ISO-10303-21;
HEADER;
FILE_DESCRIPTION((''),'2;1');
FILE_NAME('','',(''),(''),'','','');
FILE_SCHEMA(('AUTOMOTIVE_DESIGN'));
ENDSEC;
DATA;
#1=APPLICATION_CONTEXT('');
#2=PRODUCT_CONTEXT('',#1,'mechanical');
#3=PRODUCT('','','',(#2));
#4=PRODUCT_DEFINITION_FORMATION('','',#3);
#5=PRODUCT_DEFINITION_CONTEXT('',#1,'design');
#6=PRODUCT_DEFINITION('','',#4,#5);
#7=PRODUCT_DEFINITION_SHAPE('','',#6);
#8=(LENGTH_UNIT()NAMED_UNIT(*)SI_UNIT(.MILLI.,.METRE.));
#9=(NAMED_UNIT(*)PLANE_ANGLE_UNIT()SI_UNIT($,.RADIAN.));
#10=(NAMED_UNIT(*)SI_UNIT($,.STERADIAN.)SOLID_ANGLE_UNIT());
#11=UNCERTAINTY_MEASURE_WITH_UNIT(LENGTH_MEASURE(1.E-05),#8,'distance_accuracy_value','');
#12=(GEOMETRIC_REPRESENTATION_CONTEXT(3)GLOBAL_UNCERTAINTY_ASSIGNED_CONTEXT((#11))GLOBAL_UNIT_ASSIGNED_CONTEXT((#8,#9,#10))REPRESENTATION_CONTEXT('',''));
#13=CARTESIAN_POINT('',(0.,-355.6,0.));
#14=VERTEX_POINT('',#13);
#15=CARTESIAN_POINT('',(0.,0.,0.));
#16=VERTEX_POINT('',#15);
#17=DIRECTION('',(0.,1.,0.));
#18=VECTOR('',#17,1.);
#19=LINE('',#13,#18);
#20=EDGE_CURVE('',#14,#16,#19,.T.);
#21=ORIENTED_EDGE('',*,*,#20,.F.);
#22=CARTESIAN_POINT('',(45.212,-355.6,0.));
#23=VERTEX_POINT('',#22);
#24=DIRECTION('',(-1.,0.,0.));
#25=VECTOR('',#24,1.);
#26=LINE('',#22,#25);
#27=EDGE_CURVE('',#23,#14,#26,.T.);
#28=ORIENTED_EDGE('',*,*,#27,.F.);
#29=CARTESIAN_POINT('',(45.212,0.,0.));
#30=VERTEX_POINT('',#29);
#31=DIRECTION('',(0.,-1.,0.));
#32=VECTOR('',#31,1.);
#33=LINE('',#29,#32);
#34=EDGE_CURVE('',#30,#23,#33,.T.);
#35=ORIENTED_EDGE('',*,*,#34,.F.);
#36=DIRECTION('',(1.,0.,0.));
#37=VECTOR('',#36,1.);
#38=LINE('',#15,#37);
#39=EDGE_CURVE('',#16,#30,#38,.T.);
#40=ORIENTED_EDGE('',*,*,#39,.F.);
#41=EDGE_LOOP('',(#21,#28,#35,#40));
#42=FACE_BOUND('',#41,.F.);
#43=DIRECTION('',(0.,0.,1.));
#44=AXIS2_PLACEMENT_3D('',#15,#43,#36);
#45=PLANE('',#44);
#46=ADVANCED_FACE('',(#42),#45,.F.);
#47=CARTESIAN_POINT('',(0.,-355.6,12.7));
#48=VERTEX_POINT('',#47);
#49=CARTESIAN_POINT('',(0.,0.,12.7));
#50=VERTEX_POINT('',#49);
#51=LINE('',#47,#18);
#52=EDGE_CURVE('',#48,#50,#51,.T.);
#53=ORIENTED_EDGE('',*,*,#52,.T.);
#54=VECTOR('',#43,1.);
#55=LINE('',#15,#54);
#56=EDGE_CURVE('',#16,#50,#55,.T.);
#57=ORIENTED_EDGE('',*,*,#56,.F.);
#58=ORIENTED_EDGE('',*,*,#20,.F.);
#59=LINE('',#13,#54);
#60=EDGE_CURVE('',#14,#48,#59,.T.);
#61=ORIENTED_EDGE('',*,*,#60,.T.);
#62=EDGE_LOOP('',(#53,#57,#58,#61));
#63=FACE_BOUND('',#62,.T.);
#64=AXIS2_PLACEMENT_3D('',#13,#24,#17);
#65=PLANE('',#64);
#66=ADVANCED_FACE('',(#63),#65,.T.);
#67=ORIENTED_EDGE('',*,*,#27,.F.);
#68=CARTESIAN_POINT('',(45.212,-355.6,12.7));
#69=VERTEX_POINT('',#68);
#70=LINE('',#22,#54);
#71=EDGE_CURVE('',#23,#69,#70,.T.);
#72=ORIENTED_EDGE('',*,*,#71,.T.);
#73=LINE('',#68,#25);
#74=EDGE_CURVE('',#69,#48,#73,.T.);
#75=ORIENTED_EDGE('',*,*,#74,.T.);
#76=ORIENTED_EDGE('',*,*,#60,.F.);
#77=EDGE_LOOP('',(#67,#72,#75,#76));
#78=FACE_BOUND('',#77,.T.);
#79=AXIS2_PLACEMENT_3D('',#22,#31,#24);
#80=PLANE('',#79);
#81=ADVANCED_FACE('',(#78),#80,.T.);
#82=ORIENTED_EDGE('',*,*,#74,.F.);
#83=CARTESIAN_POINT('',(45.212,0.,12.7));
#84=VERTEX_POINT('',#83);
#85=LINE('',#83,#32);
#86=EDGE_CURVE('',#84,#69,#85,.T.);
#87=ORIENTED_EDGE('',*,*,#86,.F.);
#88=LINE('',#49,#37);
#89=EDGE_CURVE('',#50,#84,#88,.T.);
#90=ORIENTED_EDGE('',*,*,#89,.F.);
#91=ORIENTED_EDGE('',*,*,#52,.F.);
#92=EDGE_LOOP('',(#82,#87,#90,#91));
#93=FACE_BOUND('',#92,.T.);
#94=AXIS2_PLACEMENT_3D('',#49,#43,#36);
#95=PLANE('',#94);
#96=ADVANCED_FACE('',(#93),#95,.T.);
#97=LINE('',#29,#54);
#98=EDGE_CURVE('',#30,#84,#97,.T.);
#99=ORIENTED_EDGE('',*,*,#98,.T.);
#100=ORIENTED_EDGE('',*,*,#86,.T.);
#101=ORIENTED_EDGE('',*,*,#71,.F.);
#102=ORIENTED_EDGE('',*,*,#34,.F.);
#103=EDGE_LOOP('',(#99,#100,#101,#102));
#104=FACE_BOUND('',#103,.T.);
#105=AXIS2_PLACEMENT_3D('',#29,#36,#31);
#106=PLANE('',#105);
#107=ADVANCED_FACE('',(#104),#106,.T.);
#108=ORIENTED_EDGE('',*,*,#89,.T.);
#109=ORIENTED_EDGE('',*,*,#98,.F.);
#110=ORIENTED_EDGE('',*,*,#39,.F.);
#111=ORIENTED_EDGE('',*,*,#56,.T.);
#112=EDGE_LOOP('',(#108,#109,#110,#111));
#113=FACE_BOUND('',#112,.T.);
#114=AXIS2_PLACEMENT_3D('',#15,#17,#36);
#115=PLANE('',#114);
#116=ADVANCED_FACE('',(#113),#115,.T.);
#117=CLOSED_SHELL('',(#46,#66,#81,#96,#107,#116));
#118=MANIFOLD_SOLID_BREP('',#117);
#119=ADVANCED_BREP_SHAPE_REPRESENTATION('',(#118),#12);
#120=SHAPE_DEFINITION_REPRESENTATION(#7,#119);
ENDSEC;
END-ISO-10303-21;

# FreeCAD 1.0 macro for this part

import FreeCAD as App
import Part
import Sketcher

V = App.Vector
Q = App.Units.Quantity

doc = App.newDocument("Part")
params = doc.addObject("Spreadsheet::Sheet", "Params")
for row, (alias, value) in enumerate([
    ("sketch1_height", "14 in"),
    ("sketch1_width", "1.78 in"),
    ("pad1_length", "0.5 in"),
], start=1):
    params.set(f"A{row}", alias)
    params.set(f"B{row}", "=" + value)
    params.setAlias(f"B{row}", alias)

body = doc.addObject("PartDesign::Body", "Body")

# Sketch on XY plane
sketch1 = body.newObject("Sketcher::SketchObject", "Sketch")
sketch1.AttachmentSupport = (doc.getObject("XY_Plane"), [""])
sketch1.MapMode = "FlatFace"
sketch1.addGeometry(Part.LineSegment(V(45.212, 0, 0), V(0, 0, 0)), False)
sketch1.addGeometry(Part.LineSegment(V(0, 0, 0), V(0, -355.6, 0)), False)
sketch1.addGeometry(Part.LineSegment(V(0, -355.6, 0), V(45.212, -355.6, 0)), False)
sketch1.addGeometry(Part.LineSegment(V(45.212, -355.6, 0), V(45.212, 0, 0)), False)
sketch1.addConstraint(Sketcher.Constraint("Coincident", 0, 2, 1, 1))
sketch1.addConstraint(Sketcher.Constraint("Coincident", 1, 2, 2, 1))
sketch1.addConstraint(Sketcher.Constraint("Coincident", 2, 2, 3, 1))
sketch1.addConstraint(Sketcher.Constraint("Coincident", 3, 2, 0, 1))
sketch1.addConstraint(Sketcher.Constraint("Horizontal", 0))
sketch1.addConstraint(Sketcher.Constraint("Vertical", 1))
sketch1.addConstraint(Sketcher.Constraint("Horizontal", 2))
sketch1.addConstraint(Sketcher.Constraint("Vertical", 3))
sketch1.addConstraint(Sketcher.Constraint("Coincident", 0, 2, -1, 1))
sketch1.addConstraint(Sketcher.Constraint("DistanceY", 1, 2, 1, 1, Q("14 in")))
sketch1.addConstraint(Sketcher.Constraint("DistanceX", 0, 2, 0, 1, Q("1.78 in")))
sketch1.setExpression("Constraints[9]", "Params.sketch1_height")
sketch1.setExpression("Constraints[10]", "Params.sketch1_width")
pad1 = body.newObject("PartDesign::Pad", "Pad")
pad1.Profile = sketch1
pad1.setExpression("Length", "Params.pad1_length")

doc.recompute()
